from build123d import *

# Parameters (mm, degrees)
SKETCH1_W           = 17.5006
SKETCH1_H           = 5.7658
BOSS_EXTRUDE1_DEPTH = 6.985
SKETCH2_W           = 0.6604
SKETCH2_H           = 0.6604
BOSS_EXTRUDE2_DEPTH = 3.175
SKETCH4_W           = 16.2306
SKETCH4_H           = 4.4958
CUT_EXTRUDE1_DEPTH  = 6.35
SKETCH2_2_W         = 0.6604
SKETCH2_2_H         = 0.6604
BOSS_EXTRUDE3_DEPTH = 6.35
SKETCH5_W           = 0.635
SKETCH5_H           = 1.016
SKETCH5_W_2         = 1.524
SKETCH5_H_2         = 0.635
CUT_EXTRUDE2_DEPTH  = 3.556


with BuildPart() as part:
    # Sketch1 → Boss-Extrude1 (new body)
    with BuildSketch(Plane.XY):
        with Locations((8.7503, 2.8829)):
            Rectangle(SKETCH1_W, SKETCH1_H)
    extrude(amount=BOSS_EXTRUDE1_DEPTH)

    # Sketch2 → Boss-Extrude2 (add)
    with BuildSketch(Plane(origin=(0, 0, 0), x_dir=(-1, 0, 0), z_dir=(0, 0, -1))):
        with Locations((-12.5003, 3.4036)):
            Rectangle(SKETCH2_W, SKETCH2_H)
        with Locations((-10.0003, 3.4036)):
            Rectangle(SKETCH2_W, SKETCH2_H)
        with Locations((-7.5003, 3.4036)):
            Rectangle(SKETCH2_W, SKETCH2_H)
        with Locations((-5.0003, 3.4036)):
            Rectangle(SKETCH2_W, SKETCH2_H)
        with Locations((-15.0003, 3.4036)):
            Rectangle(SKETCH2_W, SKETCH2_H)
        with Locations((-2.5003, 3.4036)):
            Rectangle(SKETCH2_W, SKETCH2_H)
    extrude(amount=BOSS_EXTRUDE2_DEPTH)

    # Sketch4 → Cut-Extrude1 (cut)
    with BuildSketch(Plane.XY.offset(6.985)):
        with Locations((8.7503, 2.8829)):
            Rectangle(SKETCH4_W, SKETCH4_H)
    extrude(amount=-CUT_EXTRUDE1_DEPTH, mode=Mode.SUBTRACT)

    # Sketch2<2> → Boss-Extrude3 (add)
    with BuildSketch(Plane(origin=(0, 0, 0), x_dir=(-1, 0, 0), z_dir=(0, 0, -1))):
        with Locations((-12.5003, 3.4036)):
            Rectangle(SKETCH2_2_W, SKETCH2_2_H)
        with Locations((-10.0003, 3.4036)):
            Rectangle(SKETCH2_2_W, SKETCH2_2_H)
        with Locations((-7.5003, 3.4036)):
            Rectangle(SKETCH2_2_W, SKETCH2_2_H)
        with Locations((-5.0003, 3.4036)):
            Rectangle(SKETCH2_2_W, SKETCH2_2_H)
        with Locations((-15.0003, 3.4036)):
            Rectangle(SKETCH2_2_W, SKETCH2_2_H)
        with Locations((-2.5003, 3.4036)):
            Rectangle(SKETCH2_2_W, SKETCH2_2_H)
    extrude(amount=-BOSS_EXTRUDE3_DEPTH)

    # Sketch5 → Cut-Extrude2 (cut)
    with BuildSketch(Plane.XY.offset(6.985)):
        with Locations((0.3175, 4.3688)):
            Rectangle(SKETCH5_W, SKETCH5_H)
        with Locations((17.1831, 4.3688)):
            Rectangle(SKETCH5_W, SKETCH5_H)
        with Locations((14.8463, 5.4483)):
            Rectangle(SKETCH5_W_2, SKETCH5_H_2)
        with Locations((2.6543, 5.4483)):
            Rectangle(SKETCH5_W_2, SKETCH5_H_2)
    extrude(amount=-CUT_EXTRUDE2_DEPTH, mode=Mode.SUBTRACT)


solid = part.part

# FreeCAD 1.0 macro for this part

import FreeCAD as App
import Part
import Sketcher
from FreeCAD import Vector
Q = App.Units.Quantity

doc = App.newDocument("Part")
body = doc.addObject("PartDesign::Body", "Body")

# Sketch on XY plane
sketch1 = doc.addObject("Sketcher::SketchObject", "Sketch")
body.addObject(sketch1)
sketch1.AttachmentSupport = (doc.XY_Plane, [""])
sketch1.MapMode = "FlatFace"
sketch1.addGeometry([
    Part.LineSegment(Vector(0, 6, 0), Vector(0, 0, 0)),
    Part.LineSegment(Vector(0, 0, 0), Vector(18, 0, 0)),
    Part.LineSegment(Vector(18, 0, 0), Vector(18, 6, 0)),
    Part.LineSegment(Vector(18, 6, 0), Vector(0, 6, 0)),
], False)
sketch1.addConstraint([
    Sketcher.Constraint("Coincident", 0, 2, 1, 1),
    Sketcher.Constraint("Coincident", 1, 2, 2, 1),
    Sketcher.Constraint("Coincident", 2, 2, 3, 1),
    Sketcher.Constraint("Coincident", 3, 2, 0, 1),
    Sketcher.Constraint("Vertical", 0),
    Sketcher.Constraint("Horizontal", 1),
    Sketcher.Constraint("Vertical", 2),
    Sketcher.Constraint("Horizontal", 3),
    Sketcher.Constraint("Coincident", 0, 2, -1, 1),
    Sketcher.Constraint("DistanceX", 1, 1, 1, 2, Q("0.689 in")),
    Sketcher.Constraint("DistanceY", 0, 2, 0, 1, Q("0.227 in")),
])
pad1 = doc.addObject("PartDesign::Pad", "Pad")
body.addObject(pad1)
pad1.Profile = sketch1
pad1.Length = Q("0.275 in")

# Sketch on XY plane
sketch2 = doc.addObject("Sketcher::SketchObject", "Sketch001")
body.addObject(sketch2)
sketch2.AttachmentSupport = (doc.XY_Plane, [""])
sketch2.MapMode = "FlatFace"
sketch2.addGeometry([
    Part.LineSegment(Vector(12.8, 3.7, 0), Vector(12.8, 3.1, 0)),  # 0
    Part.LineSegment(Vector(12.8, 3.1, 0), Vector(12.2, 3.1, 0)),  # 1
    Part.LineSegment(Vector(12.2, 3.1, 0), Vector(12.2, 3.7, 0)),  # 2
    Part.LineSegment(Vector(12.2, 3.7, 0), Vector(12.8, 3.7, 0)),  # 3
    Part.LineSegment(Vector(10.3, 3.7, 0), Vector(10.3, 3.1, 0)),  # 4
    Part.LineSegment(Vector(10.3, 3.1, 0), Vector(9.7, 3.1, 0)),  # 5
    Part.LineSegment(Vector(9.7, 3.1, 0), Vector(9.7, 3.7, 0)),  # 6
    Part.LineSegment(Vector(9.7, 3.7, 0), Vector(10.3, 3.7, 0)),  # 7
    Part.LineSegment(Vector(7.8, 3.7, 0), Vector(7.8, 3.1, 0)),  # 8
    Part.LineSegment(Vector(7.8, 3.1, 0), Vector(7.2, 3.1, 0)),  # 9
    Part.LineSegment(Vector(7.2, 3.1, 0), Vector(7.2, 3.7, 0)),  # 10
    Part.LineSegment(Vector(7.2, 3.7, 0), Vector(7.8, 3.7, 0)),  # 11
    Part.LineSegment(Vector(5.3, 3.7, 0), Vector(5.3, 3.1, 0)),  # 12
    Part.LineSegment(Vector(5.3, 3.1, 0), Vector(4.7, 3.1, 0)),  # 13
    Part.LineSegment(Vector(4.7, 3.1, 0), Vector(4.7, 3.7, 0)),  # 14
    Part.LineSegment(Vector(4.7, 3.7, 0), Vector(5.3, 3.7, 0)),  # 15
    Part.LineSegment(Vector(15.3, 3.7, 0), Vector(15.3, 3.1, 0)),  # 16
    Part.LineSegment(Vector(15.3, 3.1, 0), Vector(14.7, 3.1, 0)),  # 17
    Part.LineSegment(Vector(14.7, 3.1, 0), Vector(14.7, 3.7, 0)),  # 18
    Part.LineSegment(Vector(14.7, 3.7, 0), Vector(15.3, 3.7, 0)),  # 19
    Part.LineSegment(Vector(2.8, 3.7, 0), Vector(2.8, 3.1, 0)),  # 20
    Part.LineSegment(Vector(2.8, 3.1, 0), Vector(2.2, 3.1, 0)),  # 21
    Part.LineSegment(Vector(2.2, 3.1, 0), Vector(2.2, 3.7, 0)),  # 22
    Part.LineSegment(Vector(2.2, 3.7, 0), Vector(2.8, 3.7, 0)),  # 23
], False)
sketch2.addConstraint([
    Sketcher.Constraint("Coincident", 0, 2, 1, 1),
    Sketcher.Constraint("Coincident", 1, 2, 2, 1),
    Sketcher.Constraint("Coincident", 2, 2, 3, 1),
    Sketcher.Constraint("Coincident", 3, 2, 0, 1),
    Sketcher.Constraint("Coincident", 4, 2, 5, 1),
    Sketcher.Constraint("Coincident", 5, 2, 6, 1),
    Sketcher.Constraint("Coincident", 6, 2, 7, 1),
    Sketcher.Constraint("Coincident", 7, 2, 4, 1),
    Sketcher.Constraint("Coincident", 8, 2, 9, 1),
    Sketcher.Constraint("Coincident", 9, 2, 10, 1),
    Sketcher.Constraint("Coincident", 10, 2, 11, 1),
    Sketcher.Constraint("Coincident", 11, 2, 8, 1),
    Sketcher.Constraint("Coincident", 12, 2, 13, 1),
    Sketcher.Constraint("Coincident", 13, 2, 14, 1),
    Sketcher.Constraint("Coincident", 14, 2, 15, 1),
    Sketcher.Constraint("Coincident", 15, 2, 12, 1),
    Sketcher.Constraint("Coincident", 16, 2, 17, 1),
    Sketcher.Constraint("Coincident", 17, 2, 18, 1),
    Sketcher.Constraint("Coincident", 18, 2, 19, 1),
    Sketcher.Constraint("Coincident", 19, 2, 16, 1),
    Sketcher.Constraint("Coincident", 20, 2, 21, 1),
    Sketcher.Constraint("Coincident", 21, 2, 22, 1),
    Sketcher.Constraint("Coincident", 22, 2, 23, 1),
    Sketcher.Constraint("Coincident", 23, 2, 20, 1),
    Sketcher.Constraint("Vertical", 0),
    Sketcher.Constraint("Horizontal", 1),
    Sketcher.Constraint("Vertical", 2),
    Sketcher.Constraint("Horizontal", 3),
    Sketcher.Constraint("Vertical", 4),
    Sketcher.Constraint("Horizontal", 5),
    Sketcher.Constraint("Vertical", 6),
    Sketcher.Constraint("Horizontal", 7),
    Sketcher.Constraint("Vertical", 8),
    Sketcher.Constraint("Horizontal", 9),
    Sketcher.Constraint("Vertical", 10),
    Sketcher.Constraint("Horizontal", 11),
    Sketcher.Constraint("Vertical", 12),
    Sketcher.Constraint("Horizontal", 13),
    Sketcher.Constraint("Vertical", 14),
    Sketcher.Constraint("Horizontal", 15),
    Sketcher.Constraint("Vertical", 16),
    Sketcher.Constraint("Horizontal", 17),
    Sketcher.Constraint("Vertical", 18),
    Sketcher.Constraint("Horizontal", 19),
    Sketcher.Constraint("Vertical", 20),
    Sketcher.Constraint("Horizontal", 21),
    Sketcher.Constraint("Vertical", 22),
    Sketcher.Constraint("Horizontal", 23),
    Sketcher.Constraint("Horizontal", 1, 2, 4, 2),
    Sketcher.Constraint("Horizontal", 3, 2, 6, 2),
    Sketcher.Constraint("Horizontal", 5, 2, 8, 2),
    Sketcher.Constraint("Horizontal", 7, 2, 10, 2),
    Sketcher.Constraint("Horizontal", 9, 2, 12, 2),
    Sketcher.Constraint("Horizontal", 11, 2, 14, 2),
    Sketcher.Constraint("Horizontal", 13, 2, 16, 2),
    Sketcher.Constraint("Horizontal", 15, 2, 18, 2),
    Sketcher.Constraint("Horizontal", 17, 2, 20, 2),
    Sketcher.Constraint("Horizontal", 19, 2, 22, 2),
    Sketcher.Constraint("Equal", 3, 5),
    Sketcher.Constraint("Equal", 7, 9),
    Sketcher.Constraint("Equal", 11, 13),
    Sketcher.Constraint("Equal", 15, 17),
    Sketcher.Constraint("Equal", 19, 21),
    Sketcher.Constraint("Equal", 23, 0),
    Sketcher.Constraint("DistanceX", 1, 2, 1, 1, Q("0.026 in")),
    Sketcher.Constraint("DistanceY", -1, 1, 0, 2, Q("0.121 in")),
    Sketcher.Constraint("DistanceX", -1, 1, 0, 2, Q("12.8305 mm")),
    Sketcher.Constraint("DistanceX", -1, 1, 4, 2, Q("10.3305 mm")),
    Sketcher.Constraint("DistanceX", -1, 1, 8, 2, Q("7.8305 mm")),
    Sketcher.Constraint("DistanceX", -1, 1, 12, 2, Q("5.3305 mm")),
    Sketcher.Constraint("DistanceX", -1, 1, 16, 2, Q("15.3305 mm")),
    Sketcher.Constraint("DistanceX", -1, 1, 20, 2, Q("2.8305 mm")),
])
pad2 = doc.addObject("PartDesign::Pad", "Pad001")
body.addObject(pad2)
pad2.Profile = sketch2
pad2.Length = Q("0.125 in")
pad2.Reversed = True

# Sketch on XY plane
sketch3 = doc.addObject("Sketcher::SketchObject", "Sketch002")
body.addObject(sketch3)
sketch3.AttachmentSupport = (doc.XY_Plane, [""])
sketch3.MapMode = "FlatFace"
sketch3.AttachmentOffset = App.Placement(Vector(0, 0, 0.275 * 25.4), App.Rotation())
sketch3.addGeometry([
    Part.LineSegment(Vector(0.6, 5.1, 0), Vector(0.6, 0.6, 0)),
    Part.LineSegment(Vector(0.6, 0.6, 0), Vector(16.9, 0.6, 0)),
    Part.LineSegment(Vector(16.9, 0.6, 0), Vector(16.9, 5.1, 0)),
    Part.LineSegment(Vector(16.9, 5.1, 0), Vector(0.6, 5.1, 0)),
], False)
sketch3.addConstraint([
    Sketcher.Constraint("Coincident", 0, 2, 1, 1),
    Sketcher.Constraint("Coincident", 1, 2, 2, 1),
    Sketcher.Constraint("Coincident", 2, 2, 3, 1),
    Sketcher.Constraint("Coincident", 3, 2, 0, 1),
    Sketcher.Constraint("Vertical", 0),
    Sketcher.Constraint("Horizontal", 1),
    Sketcher.Constraint("Vertical", 2),
    Sketcher.Constraint("Horizontal", 3),
    Sketcher.Constraint("DistanceX", 1, 1, 1, 2, Q("0.639 in")),
    Sketcher.Constraint("DistanceY", 0, 2, 0, 1, Q("0.177 in")),
    Sketcher.Constraint("DistanceX", -1, 1, 0, 2, Q("0.025 in")),
    Sketcher.Constraint("DistanceY", -1, 1, 0, 2, Q("0.025 in")),
])
pocket1 = doc.addObject("PartDesign::Pocket", "Pocket")
body.addObject(pocket1)
pocket1.Profile = sketch3
pocket1.Length = Q("0.25 in")

# Sketch on XY plane
sketch4 = doc.addObject("Sketcher::SketchObject", "Sketch003")
body.addObject(sketch4)
sketch4.AttachmentSupport = (doc.XY_Plane, [""])
sketch4.MapMode = "FlatFace"
sketch4.addGeometry([
    Part.LineSegment(Vector(12.8, 3.7, 0), Vector(12.8, 3.1, 0)),  # 0
    Part.LineSegment(Vector(12.8, 3.1, 0), Vector(12.2, 3.1, 0)),  # 1
    Part.LineSegment(Vector(12.2, 3.1, 0), Vector(12.2, 3.7, 0)),  # 2
    Part.LineSegment(Vector(12.2, 3.7, 0), Vector(12.8, 3.7, 0)),  # 3
    Part.LineSegment(Vector(10.3, 3.7, 0), Vector(10.3, 3.1, 0)),  # 4
    Part.LineSegment(Vector(10.3, 3.1, 0), Vector(9.7, 3.1, 0)),  # 5
    Part.LineSegment(Vector(9.7, 3.1, 0), Vector(9.7, 3.7, 0)),  # 6
    Part.LineSegment(Vector(9.7, 3.7, 0), Vector(10.3, 3.7, 0)),  # 7
    Part.LineSegment(Vector(7.8, 3.7, 0), Vector(7.8, 3.1, 0)),  # 8
    Part.LineSegment(Vector(7.8, 3.1, 0), Vector(7.2, 3.1, 0)),  # 9
    Part.LineSegment(Vector(7.2, 3.1, 0), Vector(7.2, 3.7, 0)),  # 10
    Part.LineSegment(Vector(7.2, 3.7, 0), Vector(7.8, 3.7, 0)),  # 11
    Part.LineSegment(Vector(5.3, 3.7, 0), Vector(5.3, 3.1, 0)),  # 12
    Part.LineSegment(Vector(5.3, 3.1, 0), Vector(4.7, 3.1, 0)),  # 13
    Part.LineSegment(Vector(4.7, 3.1, 0), Vector(4.7, 3.7, 0)),  # 14
    Part.LineSegment(Vector(4.7, 3.7, 0), Vector(5.3, 3.7, 0)),  # 15
    Part.LineSegment(Vector(15.3, 3.7, 0), Vector(15.3, 3.1, 0)),  # 16
    Part.LineSegment(Vector(15.3, 3.1, 0), Vector(14.7, 3.1, 0)),  # 17
    Part.LineSegment(Vector(14.7, 3.1, 0), Vector(14.7, 3.7, 0)),  # 18
    Part.LineSegment(Vector(14.7, 3.7, 0), Vector(15.3, 3.7, 0)),  # 19
    Part.LineSegment(Vector(2.8, 3.7, 0), Vector(2.8, 3.1, 0)),  # 20
    Part.LineSegment(Vector(2.8, 3.1, 0), Vector(2.2, 3.1, 0)),  # 21
    Part.LineSegment(Vector(2.2, 3.1, 0), Vector(2.2, 3.7, 0)),  # 22
    Part.LineSegment(Vector(2.2, 3.7, 0), Vector(2.8, 3.7, 0)),  # 23
], False)
sketch4.addConstraint([
    Sketcher.Constraint("Coincident", 0, 2, 1, 1),
    Sketcher.Constraint("Coincident", 1, 2, 2, 1),
    Sketcher.Constraint("Coincident", 2, 2, 3, 1),
    Sketcher.Constraint("Coincident", 3, 2, 0, 1),
    Sketcher.Constraint("Coincident", 4, 2, 5, 1),
    Sketcher.Constraint("Coincident", 5, 2, 6, 1),
    Sketcher.Constraint("Coincident", 6, 2, 7, 1),
    Sketcher.Constraint("Coincident", 7, 2, 4, 1),
    Sketcher.Constraint("Coincident", 8, 2, 9, 1),
    Sketcher.Constraint("Coincident", 9, 2, 10, 1),
    Sketcher.Constraint("Coincident", 10, 2, 11, 1),
    Sketcher.Constraint("Coincident", 11, 2, 8, 1),
    Sketcher.Constraint("Coincident", 12, 2, 13, 1),
    Sketcher.Constraint("Coincident", 13, 2, 14, 1),
    Sketcher.Constraint("Coincident", 14, 2, 15, 1),
    Sketcher.Constraint("Coincident", 15, 2, 12, 1),
    Sketcher.Constraint("Coincident", 16, 2, 17, 1),
    Sketcher.Constraint("Coincident", 17, 2, 18, 1),
    Sketcher.Constraint("Coincident", 18, 2, 19, 1),
    Sketcher.Constraint("Coincident", 19, 2, 16, 1),
    Sketcher.Constraint("Coincident", 20, 2, 21, 1),
    Sketcher.Constraint("Coincident", 21, 2, 22, 1),
    Sketcher.Constraint("Coincident", 22, 2, 23, 1),
    Sketcher.Constraint("Coincident", 23, 2, 20, 1),
    Sketcher.Constraint("Vertical", 0),
    Sketcher.Constraint("Horizontal", 1),
    Sketcher.Constraint("Vertical", 2),
    Sketcher.Constraint("Horizontal", 3),
    Sketcher.Constraint("Vertical", 4),
    Sketcher.Constraint("Horizontal", 5),
    Sketcher.Constraint("Vertical", 6),
    Sketcher.Constraint("Horizontal", 7),
    Sketcher.Constraint("Vertical", 8),
    Sketcher.Constraint("Horizontal", 9),
    Sketcher.Constraint("Vertical", 10),
    Sketcher.Constraint("Horizontal", 11),
    Sketcher.Constraint("Vertical", 12),
    Sketcher.Constraint("Horizontal", 13),
    Sketcher.Constraint("Vertical", 14),
    Sketcher.Constraint("Horizontal", 15),
    Sketcher.Constraint("Vertical", 16),
    Sketcher.Constraint("Horizontal", 17),
    Sketcher.Constraint("Vertical", 18),
    Sketcher.Constraint("Horizontal", 19),
    Sketcher.Constraint("Vertical", 20),
    Sketcher.Constraint("Horizontal", 21),
    Sketcher.Constraint("Vertical", 22),
    Sketcher.Constraint("Horizontal", 23),
    Sketcher.Constraint("Horizontal", 1, 2, 4, 2),
    Sketcher.Constraint("Horizontal", 3, 2, 6, 2),
    Sketcher.Constraint("Horizontal", 5, 2, 8, 2),
    Sketcher.Constraint("Horizontal", 7, 2, 10, 2),
    Sketcher.Constraint("Horizontal", 9, 2, 12, 2),
    Sketcher.Constraint("Horizontal", 11, 2, 14, 2),
    Sketcher.Constraint("Horizontal", 13, 2, 16, 2),
    Sketcher.Constraint("Horizontal", 15, 2, 18, 2),
    Sketcher.Constraint("Horizontal", 17, 2, 20, 2),
    Sketcher.Constraint("Horizontal", 19, 2, 22, 2),
    Sketcher.Constraint("Equal", 3, 5),
    Sketcher.Constraint("Equal", 7, 9),
    Sketcher.Constraint("Equal", 11, 13),
    Sketcher.Constraint("Equal", 15, 17),
    Sketcher.Constraint("Equal", 19, 21),
    Sketcher.Constraint("Equal", 23, 0),
    Sketcher.Constraint("DistanceX", 1, 2, 1, 1, Q("0.026 in")),
    Sketcher.Constraint("DistanceY", -1, 1, 0, 2, Q("0.121 in")),
    Sketcher.Constraint("DistanceX", -1, 1, 0, 2, Q("12.8305 mm")),
    Sketcher.Constraint("DistanceX", -1, 1, 4, 2, Q("10.3305 mm")),
    Sketcher.Constraint("DistanceX", -1, 1, 8, 2, Q("7.8305 mm")),
    Sketcher.Constraint("DistanceX", -1, 1, 12, 2, Q("5.3305 mm")),
    Sketcher.Constraint("DistanceX", -1, 1, 16, 2, Q("15.3305 mm")),
    Sketcher.Constraint("DistanceX", -1, 1, 20, 2, Q("2.8305 mm")),
])
pad3 = doc.addObject("PartDesign::Pad", "Pad002")
body.addObject(pad3)
pad3.Profile = sketch4
pad3.Length = Q("0.25 in")

# Sketch on XY plane
sketch5 = doc.addObject("Sketcher::SketchObject", "Sketch004")
body.addObject(sketch5)
sketch5.AttachmentSupport = (doc.XY_Plane, [""])
sketch5.MapMode = "FlatFace"
sketch5.AttachmentOffset = App.Placement(Vector(0, 0, 0.275 * 25.4), App.Rotation())
sketch5.addGeometry([
    Part.LineSegment(Vector(0, 4.9, 0), Vector(0, 3.9, 0)),  # 0
    Part.LineSegment(Vector(0, 3.9, 0), Vector(0.6, 3.9, 0)),  # 1
    Part.LineSegment(Vector(0.6, 3.9, 0), Vector(0.6, 4.9, 0)),  # 2
    Part.LineSegment(Vector(0.6, 4.9, 0), Vector(0, 4.9, 0)),  # 3
    Part.LineSegment(Vector(16.9, 4.9, 0), Vector(16.9, 3.9, 0)),  # 4
    Part.LineSegment(Vector(16.9, 3.9, 0), Vector(17.5, 3.9, 0)),  # 5
    Part.LineSegment(Vector(17.5, 3.9, 0), Vector(17.5, 4.9, 0)),  # 6
    Part.LineSegment(Vector(17.5, 4.9, 0), Vector(16.9, 4.9, 0)),  # 7
    Part.LineSegment(Vector(14.1, 5.8, 0), Vector(14.1, 5.1, 0)),  # 8
    Part.LineSegment(Vector(14.1, 5.1, 0), Vector(15.6, 5.1, 0)),  # 9
    Part.LineSegment(Vector(15.6, 5.1, 0), Vector(15.6, 5.8, 0)),  # 10
    Part.LineSegment(Vector(15.6, 5.8, 0), Vector(14.1, 5.8, 0)),  # 11
    Part.LineSegment(Vector(1.9, 5.8, 0), Vector(1.9, 5.1, 0)),  # 12
    Part.LineSegment(Vector(1.9, 5.1, 0), Vector(3.4, 5.1, 0)),  # 13
    Part.LineSegment(Vector(3.4, 5.1, 0), Vector(3.4, 5.8, 0)),  # 14
    Part.LineSegment(Vector(3.4, 5.8, 0), Vector(1.9, 5.8, 0)),  # 15
], False)
sketch5.addConstraint([
    Sketcher.Constraint("Coincident", 0, 2, 1, 1),
    Sketcher.Constraint("Coincident", 1, 2, 2, 1),
    Sketcher.Constraint("Coincident", 2, 2, 3, 1),
    Sketcher.Constraint("Coincident", 3, 2, 0, 1),
    Sketcher.Constraint("Coincident", 4, 2, 5, 1),
    Sketcher.Constraint("Coincident", 5, 2, 6, 1),
    Sketcher.Constraint("Coincident", 6, 2, 7, 1),
    Sketcher.Constraint("Coincident", 7, 2, 4, 1),
    Sketcher.Constraint("Coincident", 8, 2, 9, 1),
    Sketcher.Constraint("Coincident", 9, 2, 10, 1),
    Sketcher.Constraint("Coincident", 10, 2, 11, 1),
    Sketcher.Constraint("Coincident", 11, 2, 8, 1),
    Sketcher.Constraint("Coincident", 12, 2, 13, 1),
    Sketcher.Constraint("Coincident", 13, 2, 14, 1),
    Sketcher.Constraint("Coincident", 14, 2, 15, 1),
    Sketcher.Constraint("Coincident", 15, 2, 12, 1),
    Sketcher.Constraint("Vertical", 0),
    Sketcher.Constraint("Horizontal", 1),
    Sketcher.Constraint("Vertical", 2),
    Sketcher.Constraint("Horizontal", 3),
    Sketcher.Constraint("Vertical", 4),
    Sketcher.Constraint("Horizontal", 5),
    Sketcher.Constraint("Vertical", 6),
    Sketcher.Constraint("Horizontal", 7),
    Sketcher.Constraint("Vertical", 8),
    Sketcher.Constraint("Horizontal", 9),
    Sketcher.Constraint("Vertical", 10),
    Sketcher.Constraint("Horizontal", 11),
    Sketcher.Constraint("Vertical", 12),
    Sketcher.Constraint("Horizontal", 13),
    Sketcher.Constraint("Vertical", 14),
    Sketcher.Constraint("Horizontal", 15),
    Sketcher.Constraint("PointOnObject", 0, 2, -2),
    Sketcher.Constraint("Horizontal", 1, 2, 4, 2),
    Sketcher.Constraint("Horizontal", 3, 2, 6, 2),
    Sketcher.Constraint("Horizontal", 9, 2, 12, 2),
    Sketcher.Constraint("Horizontal", 11, 2, 14, 2),
    Sketcher.Constraint("Equal", 3, 5),
    Sketcher.Constraint("Equal", 11, 13),
    Sketcher.Constraint("Equal", 7, 8),
    Sketcher.Constraint("DistanceX", 9, 1, 9, 2, Q("0.06 in")),
    Sketcher.Constraint("DistanceY", 0, 2, 0, 1, Q("0.04 in")),
    Sketcher.Constraint("DistanceX", 1, 1, 1, 2, Q("0.025 in")),
    Sketcher.Constraint("DistanceY", 7, 2, 8, 2, Q("0.01 in")),
    Sketcher.Constraint("DistanceX", 12, 2, 8, 2, Q("0.48 in")),
    Sketcher.Constraint("DistanceY", -1, 1, 0, 2, Q("0.152 in")),
    Sketcher.Constraint("DistanceX", -1, 1, 4, 2, Q("0.664 in")),
    Sketcher.Constraint("DistanceX", -1, 1, 8, 2, Q("0.5545 in")),
])
pocket2 = doc.addObject("PartDesign::Pocket", "Pocket001")
body.addObject(pocket2)
pocket2.Profile = sketch5
pocket2.Length = Q("0.14 in")

doc.recompute()
